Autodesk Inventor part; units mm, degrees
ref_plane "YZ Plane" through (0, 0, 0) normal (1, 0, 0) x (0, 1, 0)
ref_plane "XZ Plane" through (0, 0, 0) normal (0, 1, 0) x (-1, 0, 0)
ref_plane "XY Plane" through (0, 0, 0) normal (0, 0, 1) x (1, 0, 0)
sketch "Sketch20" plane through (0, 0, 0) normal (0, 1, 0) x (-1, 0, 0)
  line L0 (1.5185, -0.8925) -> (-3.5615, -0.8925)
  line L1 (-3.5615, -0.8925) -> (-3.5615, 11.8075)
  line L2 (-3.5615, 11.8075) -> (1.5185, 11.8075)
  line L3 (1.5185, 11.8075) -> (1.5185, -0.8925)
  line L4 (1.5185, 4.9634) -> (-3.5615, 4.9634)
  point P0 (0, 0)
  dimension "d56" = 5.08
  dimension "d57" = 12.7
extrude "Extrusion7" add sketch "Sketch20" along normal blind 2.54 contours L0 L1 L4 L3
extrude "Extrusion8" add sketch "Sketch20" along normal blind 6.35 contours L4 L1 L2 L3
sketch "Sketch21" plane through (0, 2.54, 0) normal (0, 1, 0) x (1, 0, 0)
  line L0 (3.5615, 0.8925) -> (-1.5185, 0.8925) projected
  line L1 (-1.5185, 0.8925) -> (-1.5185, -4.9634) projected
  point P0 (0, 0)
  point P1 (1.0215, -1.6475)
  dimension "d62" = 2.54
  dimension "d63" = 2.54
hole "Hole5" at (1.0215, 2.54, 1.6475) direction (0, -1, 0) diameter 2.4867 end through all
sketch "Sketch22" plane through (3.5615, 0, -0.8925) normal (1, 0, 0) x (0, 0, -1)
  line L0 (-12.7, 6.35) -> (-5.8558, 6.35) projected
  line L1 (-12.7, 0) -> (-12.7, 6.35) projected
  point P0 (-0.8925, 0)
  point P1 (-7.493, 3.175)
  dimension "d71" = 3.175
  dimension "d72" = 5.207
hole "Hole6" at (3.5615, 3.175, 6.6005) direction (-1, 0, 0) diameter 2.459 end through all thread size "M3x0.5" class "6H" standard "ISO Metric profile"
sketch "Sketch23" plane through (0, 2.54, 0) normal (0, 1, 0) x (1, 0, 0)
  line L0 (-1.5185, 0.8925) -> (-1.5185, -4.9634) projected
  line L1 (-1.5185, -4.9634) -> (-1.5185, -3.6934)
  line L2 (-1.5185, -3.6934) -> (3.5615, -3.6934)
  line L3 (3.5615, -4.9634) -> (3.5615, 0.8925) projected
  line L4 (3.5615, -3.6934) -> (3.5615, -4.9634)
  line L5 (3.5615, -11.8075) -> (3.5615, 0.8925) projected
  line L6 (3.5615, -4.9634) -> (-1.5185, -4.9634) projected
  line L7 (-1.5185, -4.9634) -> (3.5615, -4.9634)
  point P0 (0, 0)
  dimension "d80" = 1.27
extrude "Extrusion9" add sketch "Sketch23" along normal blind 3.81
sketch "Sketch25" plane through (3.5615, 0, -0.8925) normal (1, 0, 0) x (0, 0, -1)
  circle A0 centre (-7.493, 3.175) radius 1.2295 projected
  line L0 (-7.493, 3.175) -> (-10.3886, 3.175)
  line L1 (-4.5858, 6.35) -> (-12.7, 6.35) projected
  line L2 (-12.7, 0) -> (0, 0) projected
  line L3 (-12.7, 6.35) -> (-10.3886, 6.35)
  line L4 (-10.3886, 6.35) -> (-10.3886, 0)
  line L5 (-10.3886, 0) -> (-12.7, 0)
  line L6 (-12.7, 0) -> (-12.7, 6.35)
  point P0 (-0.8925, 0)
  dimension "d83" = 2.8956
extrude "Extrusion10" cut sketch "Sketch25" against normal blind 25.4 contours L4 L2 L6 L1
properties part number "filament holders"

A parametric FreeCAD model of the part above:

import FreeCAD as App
import Part
import Sketcher

V = App.Vector
Q = App.Units.Quantity


def add_polygon(sketch, points):
    """Adds a closed chain of lines whose ends are joined by coincident constraints."""
    first, n = sketch.GeometryCount, len(points)
    for a, b in zip(points, points[1:] + points[:1]):
        sketch.addGeometry(Part.LineSegment(App.Vector(*a, 0), App.Vector(*b, 0)), False)
    for i in range(n):
        sketch.addConstraint(Sketcher.Constraint("Coincident", first + i, 2, first + (i + 1) % n, 1))

doc = App.newDocument("Part")
params = doc.addObject("Spreadsheet::Sheet", "Params")
for row, (alias, value) in enumerate([
    ("sketch1_width", "0.2 in"),
    ("pad1_length", "0.1 in"),
    ("sketch2_width", "0.2 in"),
    ("pad2_length", "0.25 in"),
    ("hole_diameter", "0.0979016 in"),
    ("hole2_diameter", "0.096811 in"),
    ("sketch5_height", "0.05 in"),
    ("sketch5_width", "0.2 in"),
    ("pad3_length", "0.15 in"),
    ("sketch6_width", "0.25 in"),
    ("sketch6_height", "0.091 in"),
    ("pocket1_length", "1 in"),
], start=1):
    params.set(f"A{row}", alias)
    params.set(f"B{row}", "=" + value)
    params.setAlias(f"B{row}", alias)

body = doc.addObject("PartDesign::Body", "Body")

sketch1 = body.newObject("Sketcher::SketchObject", "Sketch")
sketch1.AttachmentSupport = (doc.getObject("XZ_Plane"), [""])
sketch1.MapMode = "FlatFace"
add_polygon(sketch1, [(3.5615, -0.8925), (-1.5185, -0.8925), (-1.5185, 4.9634), (3.5615, 4.9634)])
sketch1.addConstraint([
    Sketcher.Constraint("Horizontal", 0),
    Sketcher.Constraint("Vertical", 1),
    Sketcher.Constraint("Horizontal", 2),
    Sketcher.Constraint("Vertical", 3),
    Sketcher.Constraint("DistanceX", 0, 2, 0, 1, Q("0.2 in")),
    Sketcher.Constraint("DistanceY", 1, 1, 1, 2, 5.856),
    Sketcher.Constraint("DistanceY", -1, 1, 1, 2, Q("0.1954 in")),
    Sketcher.Constraint("DistanceX", 0, 2, -1, 1, 1.5185),
])
sketch1.setExpression("Constraints[8]", "Params.sketch1_width")
pad1 = body.newObject("PartDesign::Pad", "Pad")
pad1.Profile = sketch1
pad1.setExpression("Length", "Params.pad1_length")
pad1.Reversed = True

sketch2 = body.newObject("Sketcher::SketchObject", "Sketch001")
sketch2.AttachmentSupport = (doc.getObject("XZ_Plane"), [""])
sketch2.MapMode = "FlatFace"
add_polygon(sketch2, [(3.5615, 4.9634), (-1.5185, 4.9634), (-1.5185, 11.8075), (3.5615, 11.8075)])
sketch2.addConstraint([
    Sketcher.Constraint("Horizontal", 0),
    Sketcher.Constraint("Vertical", 1),
    Sketcher.Constraint("Horizontal", 2),
    Sketcher.Constraint("Vertical", 3),
    Sketcher.Constraint("DistanceX", 0, 2, 0, 1, Q("0.2 in")),
    Sketcher.Constraint("DistanceY", 1, 1, 1, 2, 6.844),
    Sketcher.Constraint("DistanceY", -1, 1, 0, 2, Q("0.1954 in")),
    Sketcher.Constraint("DistanceX", 0, 2, -1, 1, 1.5185),
])
sketch2.setExpression("Constraints[8]", "Params.sketch2_width")
pad2 = body.newObject("PartDesign::Pad", "Pad001")
pad2.Profile = sketch2
pad2.setExpression("Length", "Params.pad2_length")
pad2.Reversed = True

sketch3 = body.newObject("Sketcher::SketchObject", "Sketch002")
sketch3.AttachmentSupport = (doc.getObject("XZ_Plane"), [""])
sketch3.MapMode = "FlatFace"
sketch3.AttachmentOffset = App.Placement(V(0, 0, -0.1 * 25.4), App.Rotation())
sketch3.addGeometry(Part.Circle(V(1.0215, 1.6475, 0), V(0, 0, 1), 1.24335), False)
sketch3.addConstraint([
    Sketcher.Constraint("Diameter", 0, Q("0.0979 in")),
    Sketcher.Constraint("DistanceX", -1, 1, 0, 3, 1.0215),
    Sketcher.Constraint("DistanceY", -1, 1, 0, 3, 1.6475),
])
doc.recompute()
hole = body.newObject("PartDesign::Hole", "Hole")
hole.Profile = sketch3
hole.ThreadType = "None"
hole.setExpression("Diameter", "Params.hole_diameter")
hole.DepthType = "ThroughAll"
hole.Reversed = True

sketch4 = body.newObject("Sketcher::SketchObject", "Sketch003")
sketch4.AttachmentSupport = (doc.getObject("YZ_Plane"), [""])
sketch4.MapMode = "FlatFace"
sketch4.AttachmentOffset = App.Placement(V(0, 0, 3.5615), App.Rotation())
sketch4.addGeometry(Part.Circle(V(3.175, 6.6005, 0), V(0, 0, 1), 1.2295), False)
sketch4.addConstraint([
    Sketcher.Constraint("Diameter", 0, Q("0.0968 in")),
    Sketcher.Constraint("DistanceX", -1, 1, 0, 3, Q("0.125 in")),
    Sketcher.Constraint("DistanceY", -1, 1, 0, 3, 6.6005),
])
doc.recompute()
hole2 = body.newObject("PartDesign::Hole", "Hole001")
hole2.Profile = sketch4
hole2.ThreadType = "None"
hole2.setExpression("Diameter", "Params.hole2_diameter")
hole2.DepthType = "ThroughAll"

sketch5 = body.newObject("Sketcher::SketchObject", "Sketch004")
sketch5.AttachmentSupport = (doc.getObject("XZ_Plane"), [""])
sketch5.MapMode = "FlatFace"
sketch5.AttachmentOffset = App.Placement(V(0, 0, -0.1 * 25.4), App.Rotation())
add_polygon(sketch5, [(3.5615, 3.6934), (-1.5185, 3.6934), (-1.5185, 4.9634), (3.5615, 4.9634)])
sketch5.addConstraint([
    Sketcher.Constraint("Horizontal", 0),
    Sketcher.Constraint("Vertical", 1),
    Sketcher.Constraint("Horizontal", 2),
    Sketcher.Constraint("Vertical", 3),
    Sketcher.Constraint("DistanceY", 1, 1, 1, 2, Q("0.05 in")),
    Sketcher.Constraint("DistanceX", 0, 2, 0, 1, Q("0.2 in")),
    Sketcher.Constraint("DistanceY", -1, 1, 0, 2, Q("0.1454 in")),
    Sketcher.Constraint("DistanceX", 0, 2, -1, 1, 1.5185),
])
sketch5.setExpression("Constraints[8]", "Params.sketch5_height")
sketch5.setExpression("Constraints[9]", "Params.sketch5_width")
pad3 = body.newObject("PartDesign::Pad", "Pad002")
pad3.Profile = sketch5
pad3.setExpression("Length", "Params.pad3_length")
pad3.Reversed = True

sketch6 = body.newObject("Sketcher::SketchObject", "Sketch005")
sketch6.AttachmentSupport = (doc.getObject("YZ_Plane"), [""])
sketch6.MapMode = "FlatFace"
sketch6.AttachmentOffset = App.Placement(V(0, 0, 3.5615), App.Rotation())
add_polygon(sketch6, [(0, 9.4961), (6.35, 9.4961), (6.35, 11.8075), (0, 11.8075)])
sketch6.addConstraint([
    Sketcher.Constraint("Horizontal", 0),
    Sketcher.Constraint("Vertical", 1),
    Sketcher.Constraint("Horizontal", 2),
    Sketcher.Constraint("Vertical", 3),
    Sketcher.Constraint("PointOnObject", 2, 2, -2),
    Sketcher.Constraint("DistanceX", 0, 1, 0, 2, Q("0.25 in")),
    Sketcher.Constraint("DistanceY", 1, 1, 1, 2, Q("0.091 in")),
    Sketcher.Constraint("DistanceY", -1, 1, 0, 2, 9.496),
])
sketch6.setExpression("Constraints[9]", "Params.sketch6_width")
sketch6.setExpression("Constraints[10]", "Params.sketch6_height")
pocket1 = body.newObject("PartDesign::Pocket", "Pocket")
pocket1.Profile = sketch6
pocket1.setExpression("Length", "Params.pocket1_length")

doc.recompute()
